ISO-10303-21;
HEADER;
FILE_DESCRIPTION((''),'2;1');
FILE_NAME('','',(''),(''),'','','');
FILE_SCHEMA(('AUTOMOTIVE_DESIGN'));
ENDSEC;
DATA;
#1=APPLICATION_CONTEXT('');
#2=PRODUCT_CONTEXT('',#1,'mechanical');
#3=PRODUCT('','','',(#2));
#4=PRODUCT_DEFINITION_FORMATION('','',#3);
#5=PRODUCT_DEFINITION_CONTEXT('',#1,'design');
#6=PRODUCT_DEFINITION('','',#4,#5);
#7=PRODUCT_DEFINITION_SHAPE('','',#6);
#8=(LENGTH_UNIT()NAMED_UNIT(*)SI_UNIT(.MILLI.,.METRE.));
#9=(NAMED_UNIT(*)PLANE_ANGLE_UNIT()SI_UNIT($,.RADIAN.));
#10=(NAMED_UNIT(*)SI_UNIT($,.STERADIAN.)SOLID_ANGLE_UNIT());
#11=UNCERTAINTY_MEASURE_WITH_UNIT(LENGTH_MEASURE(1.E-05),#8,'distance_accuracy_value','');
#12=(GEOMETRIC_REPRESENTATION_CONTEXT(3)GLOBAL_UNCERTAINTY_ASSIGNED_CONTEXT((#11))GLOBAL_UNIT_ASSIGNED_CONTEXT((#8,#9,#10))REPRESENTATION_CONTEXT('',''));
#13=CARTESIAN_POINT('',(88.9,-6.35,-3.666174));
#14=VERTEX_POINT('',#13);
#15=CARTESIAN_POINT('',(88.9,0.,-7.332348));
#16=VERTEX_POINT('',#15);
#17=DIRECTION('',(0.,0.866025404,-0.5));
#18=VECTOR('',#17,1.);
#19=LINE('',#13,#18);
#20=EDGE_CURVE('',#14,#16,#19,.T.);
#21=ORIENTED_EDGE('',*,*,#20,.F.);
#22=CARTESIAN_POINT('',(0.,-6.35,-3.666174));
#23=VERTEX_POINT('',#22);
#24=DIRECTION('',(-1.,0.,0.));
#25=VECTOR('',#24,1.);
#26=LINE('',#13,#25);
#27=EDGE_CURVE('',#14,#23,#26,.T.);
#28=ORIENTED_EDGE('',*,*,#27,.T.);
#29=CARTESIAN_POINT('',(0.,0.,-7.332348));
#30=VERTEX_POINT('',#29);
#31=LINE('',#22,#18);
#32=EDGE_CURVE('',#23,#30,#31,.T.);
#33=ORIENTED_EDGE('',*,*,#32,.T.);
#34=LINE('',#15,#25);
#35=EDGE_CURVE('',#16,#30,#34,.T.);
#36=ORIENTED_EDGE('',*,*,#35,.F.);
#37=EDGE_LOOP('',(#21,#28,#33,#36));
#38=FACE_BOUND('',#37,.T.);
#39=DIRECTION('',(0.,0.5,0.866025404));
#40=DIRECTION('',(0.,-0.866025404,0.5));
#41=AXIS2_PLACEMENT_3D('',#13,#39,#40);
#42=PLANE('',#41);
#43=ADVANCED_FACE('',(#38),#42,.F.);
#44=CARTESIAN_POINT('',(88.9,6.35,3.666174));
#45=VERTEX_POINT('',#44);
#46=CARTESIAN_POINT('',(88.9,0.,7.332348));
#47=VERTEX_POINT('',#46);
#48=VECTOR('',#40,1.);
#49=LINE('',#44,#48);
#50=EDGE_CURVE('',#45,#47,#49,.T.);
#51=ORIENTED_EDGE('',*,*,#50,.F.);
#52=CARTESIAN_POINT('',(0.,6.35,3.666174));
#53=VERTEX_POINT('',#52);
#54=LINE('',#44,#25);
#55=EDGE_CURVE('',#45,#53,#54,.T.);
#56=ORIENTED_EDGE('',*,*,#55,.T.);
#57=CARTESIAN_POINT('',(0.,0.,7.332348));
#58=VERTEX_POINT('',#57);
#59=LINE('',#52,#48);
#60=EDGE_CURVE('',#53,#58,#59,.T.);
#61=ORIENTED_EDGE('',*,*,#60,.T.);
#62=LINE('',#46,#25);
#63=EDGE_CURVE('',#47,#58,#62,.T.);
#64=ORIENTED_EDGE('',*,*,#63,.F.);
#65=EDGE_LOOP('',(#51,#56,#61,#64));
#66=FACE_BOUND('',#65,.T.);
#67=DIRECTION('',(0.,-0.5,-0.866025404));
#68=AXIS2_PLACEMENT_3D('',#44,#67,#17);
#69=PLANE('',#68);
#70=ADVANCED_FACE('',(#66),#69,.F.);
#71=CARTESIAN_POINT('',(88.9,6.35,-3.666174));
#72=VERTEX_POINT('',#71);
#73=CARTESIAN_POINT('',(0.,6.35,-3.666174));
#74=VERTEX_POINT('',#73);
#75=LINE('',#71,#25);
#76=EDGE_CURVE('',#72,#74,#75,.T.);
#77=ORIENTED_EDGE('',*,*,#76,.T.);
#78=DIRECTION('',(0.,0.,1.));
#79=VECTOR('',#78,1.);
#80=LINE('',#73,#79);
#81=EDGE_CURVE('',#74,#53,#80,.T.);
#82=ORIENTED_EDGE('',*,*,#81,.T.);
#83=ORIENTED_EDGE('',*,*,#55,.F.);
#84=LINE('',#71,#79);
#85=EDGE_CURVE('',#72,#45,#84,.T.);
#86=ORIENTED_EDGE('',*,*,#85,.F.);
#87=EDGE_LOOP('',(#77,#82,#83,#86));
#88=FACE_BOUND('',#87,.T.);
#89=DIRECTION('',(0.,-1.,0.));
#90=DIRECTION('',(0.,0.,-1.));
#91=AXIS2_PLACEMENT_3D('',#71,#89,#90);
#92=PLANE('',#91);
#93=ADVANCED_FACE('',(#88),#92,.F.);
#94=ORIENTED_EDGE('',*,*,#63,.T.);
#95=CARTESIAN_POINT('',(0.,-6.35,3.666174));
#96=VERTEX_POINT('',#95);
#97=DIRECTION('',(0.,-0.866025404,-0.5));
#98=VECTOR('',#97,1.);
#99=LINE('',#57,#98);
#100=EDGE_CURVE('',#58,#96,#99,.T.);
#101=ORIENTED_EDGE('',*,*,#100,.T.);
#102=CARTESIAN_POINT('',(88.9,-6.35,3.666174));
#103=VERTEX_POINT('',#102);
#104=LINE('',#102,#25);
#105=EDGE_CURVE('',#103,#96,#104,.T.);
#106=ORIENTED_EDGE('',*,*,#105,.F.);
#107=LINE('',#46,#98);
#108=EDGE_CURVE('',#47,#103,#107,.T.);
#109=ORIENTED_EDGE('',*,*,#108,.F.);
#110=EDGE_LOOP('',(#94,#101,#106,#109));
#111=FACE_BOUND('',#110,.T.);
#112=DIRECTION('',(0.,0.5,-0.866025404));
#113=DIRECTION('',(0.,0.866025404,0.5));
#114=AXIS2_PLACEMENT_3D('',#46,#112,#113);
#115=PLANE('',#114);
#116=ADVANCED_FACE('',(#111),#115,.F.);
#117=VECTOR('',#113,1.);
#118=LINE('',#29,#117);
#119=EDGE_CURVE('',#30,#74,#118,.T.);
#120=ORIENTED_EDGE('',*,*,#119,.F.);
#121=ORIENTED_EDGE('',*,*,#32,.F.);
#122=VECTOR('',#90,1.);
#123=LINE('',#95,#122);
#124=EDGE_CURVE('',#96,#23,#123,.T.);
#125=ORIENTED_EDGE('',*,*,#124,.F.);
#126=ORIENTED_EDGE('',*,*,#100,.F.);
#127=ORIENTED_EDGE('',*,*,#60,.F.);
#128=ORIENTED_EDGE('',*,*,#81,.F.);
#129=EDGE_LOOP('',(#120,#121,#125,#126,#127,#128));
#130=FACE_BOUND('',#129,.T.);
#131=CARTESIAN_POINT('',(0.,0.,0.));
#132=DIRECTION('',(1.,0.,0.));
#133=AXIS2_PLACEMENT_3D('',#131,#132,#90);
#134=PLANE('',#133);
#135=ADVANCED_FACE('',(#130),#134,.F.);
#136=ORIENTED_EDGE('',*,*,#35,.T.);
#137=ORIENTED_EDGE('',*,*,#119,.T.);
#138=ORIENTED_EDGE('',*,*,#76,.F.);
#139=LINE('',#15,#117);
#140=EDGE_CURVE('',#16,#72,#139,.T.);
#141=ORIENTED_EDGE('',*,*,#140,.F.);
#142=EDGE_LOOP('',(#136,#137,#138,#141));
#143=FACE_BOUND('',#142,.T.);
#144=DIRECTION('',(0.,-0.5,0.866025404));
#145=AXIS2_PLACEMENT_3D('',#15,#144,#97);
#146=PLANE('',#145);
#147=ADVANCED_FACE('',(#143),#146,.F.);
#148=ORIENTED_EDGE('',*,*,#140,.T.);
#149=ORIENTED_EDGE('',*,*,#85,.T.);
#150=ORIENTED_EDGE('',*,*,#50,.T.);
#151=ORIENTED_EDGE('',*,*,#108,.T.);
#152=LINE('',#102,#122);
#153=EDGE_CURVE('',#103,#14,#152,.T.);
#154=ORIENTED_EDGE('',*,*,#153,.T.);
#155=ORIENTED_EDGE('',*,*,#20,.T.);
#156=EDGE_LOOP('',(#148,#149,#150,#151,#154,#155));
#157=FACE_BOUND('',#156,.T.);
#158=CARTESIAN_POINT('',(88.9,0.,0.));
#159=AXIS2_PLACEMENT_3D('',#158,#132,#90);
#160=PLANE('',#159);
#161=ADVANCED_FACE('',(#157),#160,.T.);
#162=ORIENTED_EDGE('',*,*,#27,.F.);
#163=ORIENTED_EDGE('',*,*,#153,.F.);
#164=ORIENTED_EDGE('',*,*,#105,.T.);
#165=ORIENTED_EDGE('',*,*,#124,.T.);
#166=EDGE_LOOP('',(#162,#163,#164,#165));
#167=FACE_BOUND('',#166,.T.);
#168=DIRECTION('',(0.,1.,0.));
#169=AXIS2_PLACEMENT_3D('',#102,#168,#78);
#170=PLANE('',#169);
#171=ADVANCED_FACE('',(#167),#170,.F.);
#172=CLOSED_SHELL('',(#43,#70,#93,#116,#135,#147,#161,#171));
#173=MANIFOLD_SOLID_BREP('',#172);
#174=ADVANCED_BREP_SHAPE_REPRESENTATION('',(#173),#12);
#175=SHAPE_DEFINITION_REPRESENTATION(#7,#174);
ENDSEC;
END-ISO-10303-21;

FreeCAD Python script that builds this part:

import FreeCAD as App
import Part
import Sketcher
from FreeCAD import Vector
Q = App.Units.Quantity

doc = App.newDocument("Part")
body = doc.addObject("PartDesign::Body", "Body")

sketch1 = body.newObject("Sketcher::SketchObject", "Sketch")
sketch1.AttachmentSupport = (doc.getObject("YZ_Plane"), [""])
sketch1.MapMode = "FlatFace"
sketch1.addGeometry(Part.LineSegment(Vector(0, 7, 0), Vector(-6, 4, 0)), False)
sketch1.addGeometry(Part.LineSegment(Vector(-6, 4, 0), Vector(-6, -4, 0)), False)
sketch1.addGeometry(Part.LineSegment(Vector(-6, -4, 0), Vector(0, -7, 0)), False)
sketch1.addGeometry(Part.LineSegment(Vector(0, -7, 0), Vector(6, -4, 0)), False)
sketch1.addGeometry(Part.LineSegment(Vector(6, -4, 0), Vector(6, 4, 0)), False)
sketch1.addGeometry(Part.LineSegment(Vector(6, 4, 0), Vector(0, 7, 0)), False)
sketch1.addConstraint(Sketcher.Constraint("Coincident", 0, 2, 1, 1))
sketch1.addConstraint(Sketcher.Constraint("Coincident", 1, 2, 2, 1))
sketch1.addConstraint(Sketcher.Constraint("Coincident", 2, 2, 3, 1))
sketch1.addConstraint(Sketcher.Constraint("Coincident", 3, 2, 4, 1))
sketch1.addConstraint(Sketcher.Constraint("Coincident", 4, 2, 5, 1))
sketch1.addConstraint(Sketcher.Constraint("Coincident", 5, 2, 0, 1))
sketch1.addConstraint(Sketcher.Constraint("Vertical", 1))
sketch1.addConstraint(Sketcher.Constraint("Vertical", 4))
sketch1.addConstraint(Sketcher.Constraint("Symmetric", 0, 2, 3, 2, -1, 1))
sketch1.addConstraint(Sketcher.Constraint("Symmetric", 2, 2, 5, 2, -1, 1))
sketch1.addConstraint(Sketcher.Constraint("PointOnObject", 2, 2, -2))
sketch1.addConstraint(Sketcher.Constraint("Parallel", 2, 5))
sketch1.addConstraint(Sketcher.Constraint("Horizontal", 1, 2, 3, 2))
sketch1.addConstraint(Sketcher.Constraint("Angle", 0, Q("-150 deg")))
sketch1.addConstraint(Sketcher.Constraint("DistanceX", 1, 2, 3, 2, Q("0.5 in")))
sketch1.addConstraint(Sketcher.Constraint("DistanceY", 1, 2, 1, 1, 7.332348))
pad1 = body.newObject("PartDesign::Pad", "Pad")
pad1.Profile = sketch1
pad1.Length = Q("3.5 in")

doc.recompute()
